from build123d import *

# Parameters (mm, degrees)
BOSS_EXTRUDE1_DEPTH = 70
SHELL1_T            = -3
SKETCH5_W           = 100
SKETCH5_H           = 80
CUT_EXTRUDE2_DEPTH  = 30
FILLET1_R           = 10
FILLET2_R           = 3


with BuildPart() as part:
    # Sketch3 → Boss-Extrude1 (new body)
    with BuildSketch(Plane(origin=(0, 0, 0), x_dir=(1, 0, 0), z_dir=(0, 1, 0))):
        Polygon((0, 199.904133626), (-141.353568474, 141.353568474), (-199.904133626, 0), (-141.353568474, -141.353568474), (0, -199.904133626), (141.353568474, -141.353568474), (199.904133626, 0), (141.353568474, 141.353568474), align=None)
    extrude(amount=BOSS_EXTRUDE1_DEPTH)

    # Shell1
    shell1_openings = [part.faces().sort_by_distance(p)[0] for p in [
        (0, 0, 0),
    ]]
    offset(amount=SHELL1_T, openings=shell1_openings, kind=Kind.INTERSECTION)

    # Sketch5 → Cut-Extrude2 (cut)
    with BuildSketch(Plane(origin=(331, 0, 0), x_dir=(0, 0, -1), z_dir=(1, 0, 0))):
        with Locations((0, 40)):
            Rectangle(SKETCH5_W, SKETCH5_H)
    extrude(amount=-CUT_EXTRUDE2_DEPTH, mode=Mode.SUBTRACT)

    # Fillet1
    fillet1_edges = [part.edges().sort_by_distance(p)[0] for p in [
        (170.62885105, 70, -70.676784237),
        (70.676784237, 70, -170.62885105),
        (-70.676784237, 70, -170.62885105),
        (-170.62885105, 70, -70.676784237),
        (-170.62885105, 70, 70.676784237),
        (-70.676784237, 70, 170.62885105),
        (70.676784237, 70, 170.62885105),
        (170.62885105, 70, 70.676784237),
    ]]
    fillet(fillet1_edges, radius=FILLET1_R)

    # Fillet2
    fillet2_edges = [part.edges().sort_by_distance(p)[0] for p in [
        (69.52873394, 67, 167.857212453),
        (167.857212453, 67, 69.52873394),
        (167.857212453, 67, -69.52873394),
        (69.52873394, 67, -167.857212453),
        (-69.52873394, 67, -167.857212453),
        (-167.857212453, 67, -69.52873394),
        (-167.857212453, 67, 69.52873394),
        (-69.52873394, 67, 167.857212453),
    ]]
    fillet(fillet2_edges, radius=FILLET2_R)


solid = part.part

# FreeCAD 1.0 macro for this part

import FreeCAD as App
import Part
import Sketcher
from FreeCAD import Vector
Q = App.Units.Quantity


def edges_at(feature, points):
    """Names of the edges that pass closest to the given points."""
    edges = feature.Shape.Edges
    near = lambda p: min(range(len(edges)), key=lambda i: edges[i].distToShape(Part.Vertex(*p))[0])
    return sorted({f"Edge{near(p) + 1}" for p in points})


def faces_at(feature, points):
    """Names of the faces that lie closest to the given points."""
    faces = feature.Shape.Faces
    near = lambda p: min(range(len(faces)), key=lambda i: faces[i].distToShape(Part.Vertex(*p))[0])
    return sorted({f"Face{near(p) + 1}" for p in points})

doc = App.newDocument("Part")
body = doc.addObject("PartDesign::Body", "Body")

# Sketch on XZ plane
sketch1 = doc.addObject("Sketcher::SketchObject", "Sketch")
body.addObject(sketch1)
sketch1.AttachmentSupport = (doc.XZ_Plane, [""])
sketch1.MapMode = "FlatFace"
sketch1.addGeometry([
    Part.LineSegment(Vector(0, -200, 0), Vector(-141, -141, 0)),  # 0
    Part.LineSegment(Vector(-141, -141, 0), Vector(-200, 0, 0)),  # 1
    Part.LineSegment(Vector(-200, 0, 0), Vector(-141, 141, 0)),  # 2
    Part.LineSegment(Vector(-141, 141, 0), Vector(0, 200, 0)),  # 3
    Part.LineSegment(Vector(0, 200, 0), Vector(141, 141, 0)),  # 4
    Part.LineSegment(Vector(141, 141, 0), Vector(200, 0, 0)),  # 5
    Part.LineSegment(Vector(200, 0, 0), Vector(141, -141, 0)),  # 6
    Part.LineSegment(Vector(141, -141, 0), Vector(0, -200, 0)),  # 7
], False)
sketch1.addConstraint([
    Sketcher.Constraint("Coincident", 0, 2, 1, 1),
    Sketcher.Constraint("Coincident", 1, 2, 2, 1),
    Sketcher.Constraint("Coincident", 2, 2, 3, 1),
    Sketcher.Constraint("Coincident", 3, 2, 4, 1),
    Sketcher.Constraint("Coincident", 4, 2, 5, 1),
    Sketcher.Constraint("Coincident", 5, 2, 6, 1),
    Sketcher.Constraint("Coincident", 6, 2, 7, 1),
    Sketcher.Constraint("Coincident", 7, 2, 0, 1),
    Sketcher.Constraint("Symmetric", 0, 2, 4, 2, -1, 1),
    Sketcher.Constraint("Symmetric", 1, 2, 5, 2, -1, 1),
    Sketcher.Constraint("Symmetric", 2, 2, 6, 2, -1, 1),
    Sketcher.Constraint("Symmetric", 3, 2, 7, 2, -1, 1),
    Sketcher.Constraint("Symmetric", 2, 2, 4, 2, -2),
    Sketcher.Constraint("PointOnObject", 1, 2, -1),
    Sketcher.Constraint("PointOnObject", 3, 2, -2),
    Sketcher.Constraint("Perpendicular", 0, 2),
    Sketcher.Constraint("Equal", 0, 1),
    Sketcher.Constraint("Distance", 0, 153.0),
    Sketcher.Constraint("Angle", 0, Q("157.5 deg")),
])
pad1 = doc.addObject("PartDesign::Pad", "Pad")
body.addObject(pad1)
pad1.Profile = sketch1
pad1.Length = 70
pad1.Reversed = True
doc.recompute()

thickness = doc.addObject("PartDesign::Thickness", "Thickness")
body.addObject(thickness)
thickness.Base = (pad1, faces_at(pad1, [(0, 0, 0)]))
thickness.Value = 3
thickness.Reversed = True
thickness.Join = "Intersection"

# Sketch on YZ plane
sketch2 = doc.addObject("Sketcher::SketchObject", "Sketch001")
body.addObject(sketch2)
sketch2.AttachmentSupport = (doc.YZ_Plane, [""])
sketch2.MapMode = "FlatFace"
sketch2.AttachmentOffset = App.Placement(Vector(0, 0, 331), App.Rotation())
sketch2.addGeometry([
    Part.LineSegment(Vector(80, 50, 0), Vector(0, 50, 0)),
    Part.LineSegment(Vector(0, 50, 0), Vector(0, -50, 0)),
    Part.LineSegment(Vector(0, -50, 0), Vector(80, -50, 0)),
    Part.LineSegment(Vector(80, -50, 0), Vector(80, 50, 0)),
], False)
sketch2.addConstraint([
    Sketcher.Constraint("Coincident", 0, 2, 1, 1),
    Sketcher.Constraint("Coincident", 1, 2, 2, 1),
    Sketcher.Constraint("Coincident", 2, 2, 3, 1),
    Sketcher.Constraint("Coincident", 3, 2, 0, 1),
    Sketcher.Constraint("Horizontal", 0),
    Sketcher.Constraint("Vertical", 1),
    Sketcher.Constraint("Horizontal", 2),
    Sketcher.Constraint("Vertical", 3),
    Sketcher.Constraint("Symmetric", 0, 2, 1, 2, -1, 1),
    Sketcher.Constraint("DistanceX", 0, 2, 0, 1, 80.0),
    Sketcher.Constraint("DistanceY", 1, 2, 1, 1, 100.0),
])
pocket1 = doc.addObject("PartDesign::Pocket", "Pocket")
body.addObject(pocket1)
pocket1.Profile = sketch2
pocket1.Length = 30
doc.recompute()

fillet = doc.addObject("PartDesign::Fillet", "Fillet")
body.addObject(fillet)
fillet.Base = (pocket1, edges_at(pocket1, [
    (170.629, 70, -70.677),
    (70.677, 70, -170.629),
    (-70.677, 70, -170.629),
    (-170.629, 70, -70.677),
    (-170.629, 70, 70.677),
    (-70.677, 70, 170.629),
    (70.677, 70, 170.629),
    (170.629, 70, 70.677),
]))
fillet.Radius = 10
doc.recompute()

fillet2 = doc.addObject("PartDesign::Fillet", "Fillet001")
body.addObject(fillet2)
fillet2.Base = (fillet, edges_at(fillet, [
    (69.529, 67, 167.857),
    (167.857, 67, 69.529),
    (167.857, 67, -69.529),
    (69.529, 67, -167.857),
    (-69.529, 67, -167.857),
    (-167.857, 67, -69.529),
    (-167.857, 67, 69.529),
    (-69.529, 67, 167.857),
]))
fillet2.Radius = 3

doc.recompute()
